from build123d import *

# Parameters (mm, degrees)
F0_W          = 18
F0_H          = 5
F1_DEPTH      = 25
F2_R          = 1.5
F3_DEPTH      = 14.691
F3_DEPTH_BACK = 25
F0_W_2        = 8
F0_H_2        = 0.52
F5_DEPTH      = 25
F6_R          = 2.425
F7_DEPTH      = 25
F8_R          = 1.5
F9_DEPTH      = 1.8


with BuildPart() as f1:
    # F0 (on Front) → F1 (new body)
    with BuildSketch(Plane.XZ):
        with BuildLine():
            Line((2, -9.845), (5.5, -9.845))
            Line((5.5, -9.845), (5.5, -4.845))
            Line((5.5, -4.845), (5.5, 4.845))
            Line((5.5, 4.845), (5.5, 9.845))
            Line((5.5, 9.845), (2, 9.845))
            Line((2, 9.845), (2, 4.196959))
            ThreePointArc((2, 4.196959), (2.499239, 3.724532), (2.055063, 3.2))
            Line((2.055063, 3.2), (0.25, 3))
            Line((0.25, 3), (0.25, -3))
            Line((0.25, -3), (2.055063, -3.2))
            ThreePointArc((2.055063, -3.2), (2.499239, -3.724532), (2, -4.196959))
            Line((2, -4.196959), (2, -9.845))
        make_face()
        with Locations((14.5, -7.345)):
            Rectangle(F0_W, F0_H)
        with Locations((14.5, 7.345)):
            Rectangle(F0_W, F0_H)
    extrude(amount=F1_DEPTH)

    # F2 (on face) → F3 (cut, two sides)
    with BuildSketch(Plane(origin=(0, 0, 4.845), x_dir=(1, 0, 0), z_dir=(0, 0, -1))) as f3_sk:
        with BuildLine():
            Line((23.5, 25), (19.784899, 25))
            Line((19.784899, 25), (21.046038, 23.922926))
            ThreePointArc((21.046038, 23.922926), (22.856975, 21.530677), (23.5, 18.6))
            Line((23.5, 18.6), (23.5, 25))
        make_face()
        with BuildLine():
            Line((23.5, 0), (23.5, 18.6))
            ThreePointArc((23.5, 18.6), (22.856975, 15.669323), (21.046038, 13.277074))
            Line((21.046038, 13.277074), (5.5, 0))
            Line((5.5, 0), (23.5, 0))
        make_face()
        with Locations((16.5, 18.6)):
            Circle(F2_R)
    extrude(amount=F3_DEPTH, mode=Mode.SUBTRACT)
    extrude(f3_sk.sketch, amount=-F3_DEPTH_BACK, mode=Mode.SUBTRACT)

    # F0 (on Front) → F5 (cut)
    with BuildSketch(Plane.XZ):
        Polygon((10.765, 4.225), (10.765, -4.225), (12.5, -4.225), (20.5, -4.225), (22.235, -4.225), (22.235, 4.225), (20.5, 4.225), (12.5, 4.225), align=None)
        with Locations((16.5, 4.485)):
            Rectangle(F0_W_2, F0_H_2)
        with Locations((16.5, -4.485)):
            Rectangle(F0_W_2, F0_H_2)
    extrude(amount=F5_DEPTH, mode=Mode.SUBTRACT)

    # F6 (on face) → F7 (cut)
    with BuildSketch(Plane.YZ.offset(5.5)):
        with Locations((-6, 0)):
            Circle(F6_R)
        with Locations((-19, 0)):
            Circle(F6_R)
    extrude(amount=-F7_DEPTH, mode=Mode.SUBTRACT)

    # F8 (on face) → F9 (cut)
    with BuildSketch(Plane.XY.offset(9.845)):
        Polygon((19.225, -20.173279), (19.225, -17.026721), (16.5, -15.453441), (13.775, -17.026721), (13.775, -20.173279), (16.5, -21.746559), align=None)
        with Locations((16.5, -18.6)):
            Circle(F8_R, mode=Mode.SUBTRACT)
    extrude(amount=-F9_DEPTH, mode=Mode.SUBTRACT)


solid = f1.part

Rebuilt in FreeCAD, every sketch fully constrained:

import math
import FreeCAD as App
import Part
import Sketcher

V = App.Vector
Q = App.Units.Quantity

doc = App.newDocument("Part")
body = doc.addObject("PartDesign::Body", "Body")

# Sketch on XZ plane
sketch1 = body.newObject("Sketcher::SketchObject", "Sketch")
sketch1.AttachmentSupport = (doc.getObject("XZ_Plane"), [""])
sketch1.MapMode = "FlatFace"
sketch1.addGeometry([
    Part.LineSegment(V(2, -9.8, 0), V(23.5, -9.8, 0)),  # 0
    Part.LineSegment(V(23.5, -9.8, 0), V(23.5, -4.8, 0)),  # 1
    Part.LineSegment(V(23.5, -4.8, 0), V(5.5, -4.8, 0)),  # 2
    Part.LineSegment(V(5.5, -4.8, 0), V(5.5, 4.8, 0)),  # 3
    Part.LineSegment(V(5.5, 4.8, 0), V(23.5, 4.8, 0)),  # 4
    Part.LineSegment(V(23.5, 4.8, 0), V(23.5, 9.8, 0)),  # 5
    Part.LineSegment(V(23.5, 9.8, 0), V(2, 9.8, 0)),  # 6
    Part.LineSegment(V(2, 9.8, 0), V(2, 4.2, 0)),  # 7
    Part.ArcOfCircle(Part.Circle(V(2, 3.7, 0), V(0, 0, 1), 0.5), math.radians(-84), math.radians(90)),  # 8
    Part.LineSegment(V(2.1, 3.2, 0), V(0.2, 3, 0)),  # 9
    Part.LineSegment(V(0.2, 3, 0), V(0.2, -3, 0)),  # 10
    Part.LineSegment(V(0.2, -3, 0), V(2.1, -3.2, 0)),  # 11
    Part.ArcOfCircle(Part.Circle(V(2, -3.7, 0), V(0, 0, 1), 0.5), math.radians(-90), math.radians(84)),  # 12
    Part.LineSegment(V(2, -4.2, 0), V(2, -9.8, 0)),  # 13
], False)
sketch1.addConstraint([
    Sketcher.Constraint("Coincident", 0, 2, 1, 1),
    Sketcher.Constraint("Coincident", 1, 2, 2, 1),
    Sketcher.Constraint("Coincident", 2, 2, 3, 1),
    Sketcher.Constraint("Coincident", 3, 2, 4, 1),
    Sketcher.Constraint("Coincident", 4, 2, 5, 1),
    Sketcher.Constraint("Coincident", 5, 2, 6, 1),
    Sketcher.Constraint("Coincident", 6, 2, 7, 1),
    Sketcher.Constraint("Coincident", 7, 2, 8, 2),
    Sketcher.Constraint("Tangent", 8, 1, 9, 1),
    Sketcher.Constraint("Coincident", 9, 2, 10, 1),
    Sketcher.Constraint("Coincident", 10, 2, 11, 1),
    Sketcher.Constraint("Tangent", 11, 2, 12, 2),
    Sketcher.Constraint("Coincident", 12, 1, 13, 1),
    Sketcher.Constraint("Coincident", 13, 2, 0, 1),
    Sketcher.Constraint("Horizontal", 0),
    Sketcher.Constraint("Vertical", 1),
    Sketcher.Constraint("Horizontal", 2),
    Sketcher.Constraint("Vertical", 3),
    Sketcher.Constraint("Horizontal", 4),
    Sketcher.Constraint("Vertical", 5),
    Sketcher.Constraint("Horizontal", 6),
    Sketcher.Constraint("Vertical", 7),
    Sketcher.Constraint("Vertical", 10),
    Sketcher.Constraint("Vertical", 13),
    Sketcher.Constraint("Equal", 8, 12),
    Sketcher.Constraint("Symmetric", 8, 3, 12, 3, -1),
    Sketcher.Constraint("Symmetric", 1, 2, 4, 2, -1),
    Sketcher.Constraint("Symmetric", 6, 2, 13, 2, -1),
    Sketcher.Constraint("Vertical", 12, 3, 6, 2),
    Sketcher.Constraint("Vertical", 8, 1, 11, 2),
    Sketcher.Constraint("Radius", 8, Q("0.5 mm")),
    Sketcher.Constraint("DistanceX", 2, 2, 2, 1, Q("18 mm")),
    Sketcher.Constraint("DistanceY", 1, 1, 1, 2, Q("5 mm")),
    Sketcher.Constraint("DistanceY", 10, 2, 10, 1, Q("6 mm")),
    Sketcher.Constraint("DistanceX", 0, 1, 0, 2, Q("21.5 mm")),
    Sketcher.Constraint("DistanceX", -1, 1, 8, 3, Q("2 mm")),
    Sketcher.Constraint("DistanceY", 3, 1, 3, 2, Q("9.69 mm")),
    Sketcher.Constraint("DistanceY", -1, 1, 8, 1, Q("3.2 mm")),
    Sketcher.Constraint("DistanceX", -1, 1, 9, 2, Q("0.25 mm")),
])
pad1 = body.newObject("PartDesign::Pad", "Pad")
pad1.Profile = sketch1
pad1.Length = 25

# Sketch on XY plane
sketch2 = body.newObject("Sketcher::SketchObject", "Sketch001")
sketch2.AttachmentSupport = (doc.getObject("XY_Plane"), [""])
sketch2.MapMode = "FlatFace"
sketch2.AttachmentOffset = App.Placement(V(0, 0, 4.845), App.Rotation())
sketch2.addGeometry([
    Part.LineSegment(V(23.5, -25, 0), V(19.8, -25, 0)),  # 0
    Part.LineSegment(V(19.8, -25, 0), V(21, -23.9, 0)),  # 1
    Part.ArcOfCircle(Part.Circle(V(16.5, -18.6, 0), V(0, 0, 1), 7), math.radians(-50), math.radians(0)),  # 2
    Part.LineSegment(V(23.5, -18.6, 0), V(23.5, -25, 0)),  # 3
    Part.LineSegment(V(23.5, 0, 0), V(23.5, -18.6, 0)),  # 4
    Part.ArcOfCircle(Part.Circle(V(16.5, -18.6, 0), V(0, 0, 1), 7), math.radians(0), math.radians(50)),  # 5
    Part.LineSegment(V(21, -13.3, 0), V(5.5, 0, 0)),  # 6
    Part.LineSegment(V(5.5, 0, 0), V(23.5, 0, 0)),  # 7
    Part.Circle(V(16.5, -18.6, 0), V(0, 0, 1), 1.5),  # 8
], False)
sketch2.addConstraint([
    Sketcher.Constraint("Coincident", 0, 2, 1, 1),
    Sketcher.Constraint("Tangent", 1, 2, 2, 1),
    Sketcher.Constraint("Tangent", 2, 2, 3, 1),
    Sketcher.Constraint("Coincident", 3, 2, 0, 1),
    Sketcher.Constraint("Tangent", 4, 2, 5, 1),
    Sketcher.Constraint("Tangent", 5, 2, 6, 1),
    Sketcher.Constraint("Coincident", 6, 2, 7, 1),
    Sketcher.Constraint("Coincident", 7, 2, 4, 1),
    Sketcher.Constraint("Horizontal", 0),
    Sketcher.Constraint("Vertical", 3),
    Sketcher.Constraint("Vertical", 4),
    Sketcher.Constraint("Horizontal", 7),
    Sketcher.Constraint("Coincident", 5, 3, 2, 3),
    Sketcher.Constraint("Coincident", 8, 3, 2, 3),
    Sketcher.Constraint("Equal", 2, 5),
    Sketcher.Constraint("PointOnObject", 6, 2, -1),
    Sketcher.Constraint("Vertical", 1, 2, 5, 2),
    Sketcher.Constraint("Diameter", 8, Q("3 mm")),
    Sketcher.Constraint("Radius", 2, Q("7.000002 mm")),
    Sketcher.Constraint("DistanceX", 7, 1, 7, 2, Q("18 mm")),
    Sketcher.Constraint("DistanceY", 3, 2, 3, 1, Q("6.4 mm")),
    Sketcher.Constraint("DistanceY", 4, 2, 4, 1, Q("18.6 mm")),
    Sketcher.Constraint("DistanceX", -1, 1, 2, 3, Q("16.499998 mm")),
])
pocket1 = body.newObject("PartDesign::Pocket", "Pocket")
pocket1.Profile = sketch2
pocket1.Type = "ThroughAll"
pocket1.Midplane = True

# Sketch on XZ plane
sketch3 = body.newObject("Sketcher::SketchObject", "Sketch002")
sketch3.AttachmentSupport = (doc.getObject("XZ_Plane"), [""])
sketch3.MapMode = "FlatFace"
sketch3.addGeometry([
    Part.LineSegment(V(10.8, 4.2, 0), V(10.8, -4.2, 0)),  # 0
    Part.LineSegment(V(10.8, -4.2, 0), V(12.5, -4.2, 0)),  # 1
    Part.LineSegment(V(12.5, -4.2, 0), V(12.5, -4.7, 0)),  # 2
    Part.LineSegment(V(12.5, -4.7, 0), V(20.5, -4.7, 0)),  # 3
    Part.LineSegment(V(20.5, -4.7, 0), V(20.5, -4.2, 0)),  # 4
    Part.LineSegment(V(20.5, -4.2, 0), V(22.2, -4.2, 0)),  # 5
    Part.LineSegment(V(22.2, -4.2, 0), V(22.2, 4.2, 0)),  # 6
    Part.LineSegment(V(22.2, 4.2, 0), V(20.5, 4.2, 0)),  # 7
    Part.LineSegment(V(20.5, 4.2, 0), V(20.5, 4.7, 0)),  # 8
    Part.LineSegment(V(20.5, 4.7, 0), V(12.5, 4.7, 0)),  # 9
    Part.LineSegment(V(12.5, 4.7, 0), V(12.5, 4.2, 0)),  # 10
    Part.LineSegment(V(12.5, 4.2, 0), V(10.8, 4.2, 0)),  # 11
], False)
sketch3.addConstraint([
    Sketcher.Constraint("Coincident", 0, 2, 1, 1),
    Sketcher.Constraint("Coincident", 1, 2, 2, 1),
    Sketcher.Constraint("Coincident", 2, 2, 3, 1),
    Sketcher.Constraint("Coincident", 3, 2, 4, 1),
    Sketcher.Constraint("Coincident", 4, 2, 5, 1),
    Sketcher.Constraint("Coincident", 5, 2, 6, 1),
    Sketcher.Constraint("Coincident", 6, 2, 7, 1),
    Sketcher.Constraint("Coincident", 7, 2, 8, 1),
    Sketcher.Constraint("Coincident", 8, 2, 9, 1),
    Sketcher.Constraint("Coincident", 9, 2, 10, 1),
    Sketcher.Constraint("Coincident", 10, 2, 11, 1),
    Sketcher.Constraint("Coincident", 11, 2, 0, 1),
    Sketcher.Constraint("Vertical", 0),
    Sketcher.Constraint("Horizontal", 1),
    Sketcher.Constraint("Vertical", 2),
    Sketcher.Constraint("Horizontal", 3),
    Sketcher.Constraint("Vertical", 4),
    Sketcher.Constraint("Horizontal", 5),
    Sketcher.Constraint("Vertical", 6),
    Sketcher.Constraint("Horizontal", 7),
    Sketcher.Constraint("Vertical", 8),
    Sketcher.Constraint("Horizontal", 9),
    Sketcher.Constraint("Vertical", 10),
    Sketcher.Constraint("Horizontal", 11),
    Sketcher.Constraint("Symmetric", 4, 2, 7, 2, -1),
    Sketcher.Constraint("Symmetric", 2, 2, 9, 2, -1),
    Sketcher.Constraint("Horizontal", 1, 2, 4, 2),
    Sketcher.Constraint("Horizontal", 7, 2, 10, 2),
    Sketcher.Constraint("Equal", 1, 5),
    Sketcher.Constraint("DistanceX", 3, 1, 3, 2, Q("8 mm")),
    Sketcher.Constraint("DistanceY", 0, 2, 0, 1, Q("8.45 mm")),
    Sketcher.Constraint("DistanceY", 2, 2, 2, 1, Q("0.52 mm")),
    Sketcher.Constraint("DistanceX", -1, 1, 1, 2, Q("12.5 mm")),
    Sketcher.Constraint("DistanceX", 1, 1, 1, 2, Q("1.735 mm")),
])
pocket2 = body.newObject("PartDesign::Pocket", "Pocket001")
pocket2.Profile = sketch3
pocket2.Length = 25
pocket2.Reversed = True

# Sketch on YZ plane
sketch4 = body.newObject("Sketcher::SketchObject", "Sketch003")
sketch4.AttachmentSupport = (doc.getObject("YZ_Plane"), [""])
sketch4.MapMode = "FlatFace"
sketch4.AttachmentOffset = App.Placement(V(0, 0, 5.5), App.Rotation())
sketch4.addGeometry([
    Part.Circle(V(-6, 0, 0), V(0, 0, 1), 2.4),
    Part.Circle(V(-19, 0, 0), V(0, 0, 1), 2.4),
], False)
sketch4.addConstraint([
    Sketcher.Constraint("Equal", 0, 1),
    Sketcher.Constraint("PointOnObject", 0, 3, -1),
    Sketcher.Constraint("PointOnObject", 1, 3, -1),
    Sketcher.Constraint("Diameter", 0, Q("4.85 mm")),
    Sketcher.Constraint("DistanceX", 0, 3, -1, 1, Q("6 mm")),
    Sketcher.Constraint("DistanceX", 1, 3, -1, 1, Q("19 mm")),
])
pocket3 = body.newObject("PartDesign::Pocket", "Pocket002")
pocket3.Profile = sketch4
pocket3.Length = 25

# Sketch on XY plane
sketch5 = body.newObject("Sketcher::SketchObject", "Sketch004")
sketch5.AttachmentSupport = (doc.getObject("XY_Plane"), [""])
sketch5.MapMode = "FlatFace"
sketch5.AttachmentOffset = App.Placement(V(0, 0, 9.845), App.Rotation())
sketch5.addGeometry([
    Part.LineSegment(V(19.2, -20.2, 0), V(19.2, -17, 0)),  # 0
    Part.LineSegment(V(19.2, -17, 0), V(16.5, -15.5, 0)),  # 1
    Part.LineSegment(V(16.5, -15.5, 0), V(13.8, -17, 0)),  # 2
    Part.LineSegment(V(13.8, -17, 0), V(13.8, -20.2, 0)),  # 3
    Part.LineSegment(V(13.8, -20.2, 0), V(16.5, -21.7, 0)),  # 4
    Part.LineSegment(V(16.5, -21.7, 0), V(19.2, -20.2, 0)),  # 5
    Part.Circle(V(16.5, -18.6, 0), V(0, 0, 1), 1.5),  # 6
], False)
sketch5.addConstraint([
    Sketcher.Constraint("Coincident", 0, 2, 1, 1),
    Sketcher.Constraint("Coincident", 1, 2, 2, 1),
    Sketcher.Constraint("Coincident", 2, 2, 3, 1),
    Sketcher.Constraint("Coincident", 3, 2, 4, 1),
    Sketcher.Constraint("Coincident", 4, 2, 5, 1),
    Sketcher.Constraint("Coincident", 5, 2, 0, 1),
    Sketcher.Constraint("Vertical", 0),
    Sketcher.Constraint("Vertical", 3),
    Sketcher.Constraint("Parallel", 1, 4),
    Sketcher.Constraint("Parallel", 2, 5),
    Sketcher.Constraint("Horizontal", 0, 2, 2, 2),
    Sketcher.Constraint("Horizontal", 3, 2, 5, 2),
    Sketcher.Constraint("Vertical", 6, 3, 1, 2),
    Sketcher.Constraint("Vertical", 1, 2, 4, 2),
    Sketcher.Constraint("Diameter", 6, Q("3 mm")),
    Sketcher.Constraint("Angle", 1, Q("149.999992 deg")),
    Sketcher.Constraint("DistanceX", -1, 1, 6, 3, Q("16.5 mm")),
    Sketcher.Constraint("DistanceY", 6, 3, -1, 1, Q("18.6 mm")),
    Sketcher.Constraint("DistanceX", 2, 2, 0, 2, Q("5.45 mm")),
    Sketcher.Constraint("DistanceY", 0, 1, 0, 2, Q("3.146558 mm")),
    Sketcher.Constraint("DistanceY", 0, 2, -1, 1, Q("17.026721 mm")),
])
pocket4 = body.newObject("PartDesign::Pocket", "Pocket003")
pocket4.Profile = sketch5
pocket4.Length = 1.8

doc.recompute()
